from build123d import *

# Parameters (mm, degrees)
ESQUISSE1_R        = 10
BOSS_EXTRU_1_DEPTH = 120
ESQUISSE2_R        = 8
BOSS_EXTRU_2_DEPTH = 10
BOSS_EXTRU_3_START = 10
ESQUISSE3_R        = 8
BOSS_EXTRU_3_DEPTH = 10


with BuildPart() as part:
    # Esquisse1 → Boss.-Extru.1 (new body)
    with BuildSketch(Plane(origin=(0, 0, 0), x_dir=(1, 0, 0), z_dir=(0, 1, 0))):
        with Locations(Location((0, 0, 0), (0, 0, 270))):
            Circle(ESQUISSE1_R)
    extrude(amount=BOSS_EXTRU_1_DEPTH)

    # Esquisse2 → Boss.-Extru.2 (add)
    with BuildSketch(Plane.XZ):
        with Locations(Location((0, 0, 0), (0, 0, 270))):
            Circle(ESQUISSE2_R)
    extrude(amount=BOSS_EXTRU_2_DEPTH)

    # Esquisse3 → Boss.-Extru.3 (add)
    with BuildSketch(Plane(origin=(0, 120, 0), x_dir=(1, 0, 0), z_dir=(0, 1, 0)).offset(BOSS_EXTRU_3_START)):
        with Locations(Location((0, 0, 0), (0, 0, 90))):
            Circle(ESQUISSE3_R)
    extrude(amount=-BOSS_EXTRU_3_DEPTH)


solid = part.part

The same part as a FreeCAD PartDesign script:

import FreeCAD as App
import Part
import Sketcher

V = App.Vector

doc = App.newDocument("Part")
body = doc.addObject("PartDesign::Body", "Body")

# Sketch on XZ plane
sketch1 = doc.addObject("Sketcher::SketchObject", "Sketch")
body.addObject(sketch1)
sketch1.AttachmentSupport = (doc.XZ_Plane, [""])
sketch1.MapMode = "FlatFace"
sketch1.addGeometry(Part.Circle(V(0, 0, 0), V(0, 0, 1), 10), False)
sketch1.addConstraint([
    Sketcher.Constraint("Coincident", 0, 3, -1, 1),
    Sketcher.Constraint("Diameter", 0, 20.0),
])
pad1 = doc.addObject("PartDesign::Pad", "Pad")
body.addObject(pad1)
pad1.Profile = sketch1
pad1.Length = 120
pad1.Reversed = True

# Sketch on XZ plane
sketch2 = doc.addObject("Sketcher::SketchObject", "Sketch001")
body.addObject(sketch2)
sketch2.AttachmentSupport = (doc.XZ_Plane, [""])
sketch2.MapMode = "FlatFace"
sketch2.addGeometry(Part.Circle(V(0, 0, 0), V(0, 0, 1), 8), False)
sketch2.addConstraint([
    Sketcher.Constraint("Coincident", 0, 3, -1, 1),
    Sketcher.Constraint("Diameter", 0, 16.0),
])
pad2 = doc.addObject("PartDesign::Pad", "Pad001")
body.addObject(pad2)
pad2.Profile = sketch2
pad2.Length = 10

# Sketch on XZ plane
sketch3 = doc.addObject("Sketcher::SketchObject", "Sketch002")
body.addObject(sketch3)
sketch3.AttachmentSupport = (doc.XZ_Plane, [""])
sketch3.MapMode = "FlatFace"
sketch3.AttachmentOffset = App.Placement(V(0, 0, -130), App.Rotation())
sketch3.addGeometry(Part.Circle(V(0, 0, 0), V(0, 0, 1), 8), False)
sketch3.addConstraint([
    Sketcher.Constraint("Coincident", 0, 3, -1, 1),
    Sketcher.Constraint("Diameter", 0, 16.0),
])
pad3 = doc.addObject("PartDesign::Pad", "Pad002")
body.addObject(pad3)
pad3.Profile = sketch3
pad3.Length = 10

doc.recompute()
